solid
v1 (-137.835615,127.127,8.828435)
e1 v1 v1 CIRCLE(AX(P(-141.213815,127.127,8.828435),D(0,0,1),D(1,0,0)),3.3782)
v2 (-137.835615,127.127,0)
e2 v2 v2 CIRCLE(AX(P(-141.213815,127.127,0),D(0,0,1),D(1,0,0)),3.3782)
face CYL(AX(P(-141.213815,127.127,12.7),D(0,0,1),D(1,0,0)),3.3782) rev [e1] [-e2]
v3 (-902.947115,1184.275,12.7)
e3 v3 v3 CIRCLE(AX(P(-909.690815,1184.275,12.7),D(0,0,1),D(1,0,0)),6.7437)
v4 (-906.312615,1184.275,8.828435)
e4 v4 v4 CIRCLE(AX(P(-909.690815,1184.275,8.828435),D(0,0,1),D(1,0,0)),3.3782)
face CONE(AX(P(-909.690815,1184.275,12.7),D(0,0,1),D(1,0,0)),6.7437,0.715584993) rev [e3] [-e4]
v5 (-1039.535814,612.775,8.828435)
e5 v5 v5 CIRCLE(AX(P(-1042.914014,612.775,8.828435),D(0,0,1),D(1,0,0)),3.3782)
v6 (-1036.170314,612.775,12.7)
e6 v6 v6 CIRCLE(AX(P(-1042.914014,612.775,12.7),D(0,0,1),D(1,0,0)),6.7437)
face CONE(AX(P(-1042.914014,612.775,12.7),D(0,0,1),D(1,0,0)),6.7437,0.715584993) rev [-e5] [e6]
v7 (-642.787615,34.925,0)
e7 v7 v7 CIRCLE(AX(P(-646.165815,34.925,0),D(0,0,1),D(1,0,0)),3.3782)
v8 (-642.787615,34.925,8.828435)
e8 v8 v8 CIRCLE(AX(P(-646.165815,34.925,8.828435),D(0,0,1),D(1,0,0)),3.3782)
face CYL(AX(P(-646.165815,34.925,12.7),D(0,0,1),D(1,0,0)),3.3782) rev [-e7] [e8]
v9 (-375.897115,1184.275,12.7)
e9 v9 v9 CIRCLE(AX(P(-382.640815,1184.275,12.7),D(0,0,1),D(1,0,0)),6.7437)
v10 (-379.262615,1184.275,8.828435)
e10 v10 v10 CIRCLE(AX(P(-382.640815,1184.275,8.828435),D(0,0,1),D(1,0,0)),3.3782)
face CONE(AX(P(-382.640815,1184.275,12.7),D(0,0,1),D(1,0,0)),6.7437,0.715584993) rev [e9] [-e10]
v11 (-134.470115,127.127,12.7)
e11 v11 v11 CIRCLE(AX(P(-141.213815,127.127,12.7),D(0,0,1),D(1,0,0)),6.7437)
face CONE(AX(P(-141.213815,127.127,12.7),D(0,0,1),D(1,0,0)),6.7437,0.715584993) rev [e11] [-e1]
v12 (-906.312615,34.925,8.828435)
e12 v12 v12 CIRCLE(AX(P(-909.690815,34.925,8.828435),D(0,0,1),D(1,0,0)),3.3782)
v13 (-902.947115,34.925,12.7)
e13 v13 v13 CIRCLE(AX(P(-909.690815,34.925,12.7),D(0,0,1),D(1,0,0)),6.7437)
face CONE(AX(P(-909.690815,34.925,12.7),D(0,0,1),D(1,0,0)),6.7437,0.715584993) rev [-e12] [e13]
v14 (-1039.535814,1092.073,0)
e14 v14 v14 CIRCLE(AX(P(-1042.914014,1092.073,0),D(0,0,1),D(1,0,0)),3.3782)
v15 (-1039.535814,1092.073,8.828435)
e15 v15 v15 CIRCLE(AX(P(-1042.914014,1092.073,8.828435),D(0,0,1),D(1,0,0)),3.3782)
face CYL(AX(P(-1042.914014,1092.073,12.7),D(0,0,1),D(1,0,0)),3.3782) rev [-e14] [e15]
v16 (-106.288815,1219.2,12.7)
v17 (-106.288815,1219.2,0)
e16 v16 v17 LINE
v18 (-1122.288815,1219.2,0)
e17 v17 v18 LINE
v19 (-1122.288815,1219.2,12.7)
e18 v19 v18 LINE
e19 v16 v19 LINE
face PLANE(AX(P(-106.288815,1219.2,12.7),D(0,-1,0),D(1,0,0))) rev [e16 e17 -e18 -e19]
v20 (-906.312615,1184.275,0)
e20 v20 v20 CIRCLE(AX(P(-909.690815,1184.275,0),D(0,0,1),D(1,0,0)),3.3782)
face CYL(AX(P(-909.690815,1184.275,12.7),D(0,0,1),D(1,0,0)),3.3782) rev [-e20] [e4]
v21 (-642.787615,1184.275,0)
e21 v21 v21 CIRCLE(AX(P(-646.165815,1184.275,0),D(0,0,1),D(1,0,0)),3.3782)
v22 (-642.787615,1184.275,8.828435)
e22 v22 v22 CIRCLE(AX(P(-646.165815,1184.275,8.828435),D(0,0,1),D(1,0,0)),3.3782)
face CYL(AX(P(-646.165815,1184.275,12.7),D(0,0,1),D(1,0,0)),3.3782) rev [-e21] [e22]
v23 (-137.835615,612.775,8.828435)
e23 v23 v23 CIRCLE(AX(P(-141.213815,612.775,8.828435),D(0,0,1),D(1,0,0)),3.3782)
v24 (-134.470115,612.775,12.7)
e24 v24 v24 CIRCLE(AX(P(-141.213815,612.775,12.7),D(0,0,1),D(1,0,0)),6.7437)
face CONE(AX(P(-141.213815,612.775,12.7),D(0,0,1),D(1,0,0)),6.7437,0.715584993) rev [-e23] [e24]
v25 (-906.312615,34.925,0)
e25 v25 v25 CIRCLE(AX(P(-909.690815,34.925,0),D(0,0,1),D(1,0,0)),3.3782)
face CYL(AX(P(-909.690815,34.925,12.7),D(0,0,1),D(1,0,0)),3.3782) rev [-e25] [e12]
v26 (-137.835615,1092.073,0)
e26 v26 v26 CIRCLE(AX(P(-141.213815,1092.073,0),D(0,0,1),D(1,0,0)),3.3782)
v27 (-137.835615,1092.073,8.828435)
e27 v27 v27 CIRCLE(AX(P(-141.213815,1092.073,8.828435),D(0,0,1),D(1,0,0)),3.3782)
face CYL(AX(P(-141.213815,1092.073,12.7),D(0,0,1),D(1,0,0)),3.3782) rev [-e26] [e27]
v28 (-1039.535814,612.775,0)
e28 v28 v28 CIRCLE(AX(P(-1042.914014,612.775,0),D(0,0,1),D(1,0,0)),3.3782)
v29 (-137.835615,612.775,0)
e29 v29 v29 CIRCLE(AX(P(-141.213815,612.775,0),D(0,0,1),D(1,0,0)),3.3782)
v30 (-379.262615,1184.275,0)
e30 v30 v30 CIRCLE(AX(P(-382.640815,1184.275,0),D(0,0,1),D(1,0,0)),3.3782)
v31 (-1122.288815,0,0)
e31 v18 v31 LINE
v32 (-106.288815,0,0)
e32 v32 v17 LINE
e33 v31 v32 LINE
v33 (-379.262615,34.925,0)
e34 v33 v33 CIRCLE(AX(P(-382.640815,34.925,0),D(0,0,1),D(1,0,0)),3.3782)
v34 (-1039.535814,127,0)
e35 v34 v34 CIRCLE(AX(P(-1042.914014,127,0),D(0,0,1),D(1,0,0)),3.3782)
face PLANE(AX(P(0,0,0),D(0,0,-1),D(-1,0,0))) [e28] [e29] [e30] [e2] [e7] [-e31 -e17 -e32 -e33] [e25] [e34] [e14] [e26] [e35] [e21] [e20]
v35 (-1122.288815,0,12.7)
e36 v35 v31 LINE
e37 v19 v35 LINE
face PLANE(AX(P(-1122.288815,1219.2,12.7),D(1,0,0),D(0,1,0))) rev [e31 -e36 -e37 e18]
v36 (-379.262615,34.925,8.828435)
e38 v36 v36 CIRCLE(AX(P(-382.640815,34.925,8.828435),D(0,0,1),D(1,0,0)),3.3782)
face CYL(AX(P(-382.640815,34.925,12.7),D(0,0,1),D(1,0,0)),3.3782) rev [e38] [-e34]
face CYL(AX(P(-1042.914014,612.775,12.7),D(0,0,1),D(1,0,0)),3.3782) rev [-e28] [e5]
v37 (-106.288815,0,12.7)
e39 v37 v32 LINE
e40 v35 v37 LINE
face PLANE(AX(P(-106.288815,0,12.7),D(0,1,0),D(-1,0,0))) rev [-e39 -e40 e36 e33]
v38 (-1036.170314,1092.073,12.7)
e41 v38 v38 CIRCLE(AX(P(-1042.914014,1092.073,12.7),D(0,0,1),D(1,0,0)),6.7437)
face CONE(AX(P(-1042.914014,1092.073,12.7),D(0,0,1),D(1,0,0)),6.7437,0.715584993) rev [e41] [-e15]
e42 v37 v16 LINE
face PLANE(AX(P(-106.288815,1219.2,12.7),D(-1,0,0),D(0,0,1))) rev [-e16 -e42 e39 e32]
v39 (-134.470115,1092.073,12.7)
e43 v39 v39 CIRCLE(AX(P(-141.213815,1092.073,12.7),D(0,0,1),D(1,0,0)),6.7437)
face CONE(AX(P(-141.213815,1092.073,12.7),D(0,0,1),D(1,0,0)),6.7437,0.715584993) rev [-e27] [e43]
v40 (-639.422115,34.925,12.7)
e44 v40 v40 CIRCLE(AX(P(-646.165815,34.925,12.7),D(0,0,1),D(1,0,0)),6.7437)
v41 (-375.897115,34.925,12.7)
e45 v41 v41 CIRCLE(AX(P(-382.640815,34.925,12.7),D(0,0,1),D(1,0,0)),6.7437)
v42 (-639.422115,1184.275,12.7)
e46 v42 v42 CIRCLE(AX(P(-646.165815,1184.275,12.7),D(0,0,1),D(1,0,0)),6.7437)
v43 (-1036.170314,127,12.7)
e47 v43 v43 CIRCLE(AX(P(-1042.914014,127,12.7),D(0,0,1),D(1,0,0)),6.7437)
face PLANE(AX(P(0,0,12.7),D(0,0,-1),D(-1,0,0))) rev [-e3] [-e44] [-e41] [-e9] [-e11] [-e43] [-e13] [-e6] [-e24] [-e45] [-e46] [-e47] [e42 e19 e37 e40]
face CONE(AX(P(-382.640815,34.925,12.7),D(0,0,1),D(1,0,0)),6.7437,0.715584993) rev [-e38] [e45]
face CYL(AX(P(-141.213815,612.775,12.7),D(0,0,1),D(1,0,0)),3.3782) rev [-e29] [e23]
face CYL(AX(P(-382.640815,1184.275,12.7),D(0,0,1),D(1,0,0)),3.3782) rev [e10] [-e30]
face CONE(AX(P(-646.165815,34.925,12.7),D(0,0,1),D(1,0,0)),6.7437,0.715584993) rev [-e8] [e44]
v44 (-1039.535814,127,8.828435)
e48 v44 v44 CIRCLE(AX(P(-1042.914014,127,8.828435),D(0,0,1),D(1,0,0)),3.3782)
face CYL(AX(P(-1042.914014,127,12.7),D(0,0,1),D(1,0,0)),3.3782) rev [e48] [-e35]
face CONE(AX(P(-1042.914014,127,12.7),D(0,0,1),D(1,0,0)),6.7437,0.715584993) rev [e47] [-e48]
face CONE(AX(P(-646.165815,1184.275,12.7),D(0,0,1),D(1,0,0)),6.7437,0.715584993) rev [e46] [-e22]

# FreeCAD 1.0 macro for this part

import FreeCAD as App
import Part
import Sketcher

V = App.Vector
Q = App.Units.Quantity

doc = App.newDocument("Part")
body = doc.addObject("PartDesign::Body", "Body")

# Sketch on XY plane
sketch1 = body.newObject("Sketcher::SketchObject", "Sketch")
sketch1.AttachmentSupport = (doc.getObject("XY_Plane"), [""])
sketch1.MapMode = "FlatFace"
sketch1.addGeometry(Part.LineSegment(V(-1122, 1219, 0), V(-1122, 0, 0)), False)
sketch1.addGeometry(Part.LineSegment(V(-1122, 0, 0), V(-106, 0, 0)), False)
sketch1.addGeometry(Part.LineSegment(V(-106, 0, 0), V(-106, 1219, 0)), False)
sketch1.addGeometry(Part.LineSegment(V(-106, 1219, 0), V(-1122, 1219, 0)), False)
sketch1.addConstraint(Sketcher.Constraint("Coincident", 0, 2, 1, 1))
sketch1.addConstraint(Sketcher.Constraint("Coincident", 1, 2, 2, 1))
sketch1.addConstraint(Sketcher.Constraint("Coincident", 2, 2, 3, 1))
sketch1.addConstraint(Sketcher.Constraint("Coincident", 3, 2, 0, 1))
sketch1.addConstraint(Sketcher.Constraint("Vertical", 0))
sketch1.addConstraint(Sketcher.Constraint("Horizontal", 1))
sketch1.addConstraint(Sketcher.Constraint("Vertical", 2))
sketch1.addConstraint(Sketcher.Constraint("Horizontal", 3))
sketch1.addConstraint(Sketcher.Constraint("PointOnObject", 0, 2, -1))
sketch1.addConstraint(Sketcher.Constraint("DistanceX", 1, 1, 1, 2, Q("40 in")))
sketch1.addConstraint(Sketcher.Constraint("DistanceY", 0, 2, 0, 1, Q("48 in")))
sketch1.addConstraint(Sketcher.Constraint("DistanceX", 0, 2, -1, 1, Q("1122.288815 mm")))
pad1 = body.newObject("PartDesign::Pad", "Pad")
pad1.Profile = sketch1
pad1.Length = Q("0.5 in")

# Sketch on XY plane
sketch2 = body.newObject("Sketcher::SketchObject", "Sketch001")
sketch2.AttachmentSupport = (doc.getObject("XY_Plane"), [""])
sketch2.MapMode = "FlatFace"
sketch2.addGeometry(Part.Circle(V(-382.6, 1184.3, 0), V(0, 0, 1), 3.3), False)
sketch2.addGeometry(Part.Circle(V(-646.2, 1184.3, 0), V(0, 0, 1), 3.3), False)
sketch2.addGeometry(Part.Circle(V(-909.7, 1184.3, 0), V(0, 0, 1), 3.3), False)
sketch2.addGeometry(Part.Circle(V(-1042.9, 1092.1, 0), V(0, 0, 1), 3.2), False)
sketch2.addGeometry(Part.Circle(V(-1042.9, 612.8, 0), V(0, 0, 1), 3.2), False)
sketch2.addGeometry(Part.Circle(V(-1042.9, 127, 0), V(0, 0, 1), 3.2), False)
sketch2.addGeometry(Part.Circle(V(-141.2, 127.1, 0), V(0, 0, 1), 3.2), False)
sketch2.addGeometry(Part.Circle(V(-141.2, 612.8, 0), V(0, 0, 1), 3.3), False)
sketch2.addGeometry(Part.Circle(V(-141.2, 1092.1, 0), V(0, 0, 1), 3.2), False)
sketch2.addGeometry(Part.Circle(V(-909.7, 34.9, 0), V(0, 0, 1), 3.3), False)
sketch2.addGeometry(Part.Circle(V(-646.2, 34.9, 0), V(0, 0, 1), 3.3), False)
sketch2.addGeometry(Part.Circle(V(-382.6, 34.9, 0), V(0, 0, 1), 3.3), False)
sketch2.addConstraint(Sketcher.Constraint("Equal", 0, 1))
sketch2.addConstraint(Sketcher.Constraint("Equal", 1, 2))
sketch2.addConstraint(Sketcher.Constraint("Equal", 3, 4))
sketch2.addConstraint(Sketcher.Constraint("Equal", 4, 5))
sketch2.addConstraint(Sketcher.Constraint("Equal", 5, 6))
sketch2.addConstraint(Sketcher.Constraint("Equal", 2, 7))
sketch2.addConstraint(Sketcher.Constraint("Equal", 6, 8))
sketch2.addConstraint(Sketcher.Constraint("Equal", 7, 9))
sketch2.addConstraint(Sketcher.Constraint("Equal", 9, 10))
sketch2.addConstraint(Sketcher.Constraint("Equal", 10, 11))
sketch2.addConstraint(Sketcher.Constraint("Horizontal", 0, 3, 1, 3))
sketch2.addConstraint(Sketcher.Constraint("Horizontal", 1, 3, 2, 3))
sketch2.addConstraint(Sketcher.Constraint("Horizontal", 4, 3, 7, 3))
sketch2.addConstraint(Sketcher.Constraint("Horizontal", 3, 3, 8, 3))
sketch2.addConstraint(Sketcher.Constraint("Horizontal", 9, 3, 10, 3))
sketch2.addConstraint(Sketcher.Constraint("Horizontal", 10, 3, 11, 3))
sketch2.addConstraint(Sketcher.Constraint("Vertical", 3, 3, 4, 3))
sketch2.addConstraint(Sketcher.Constraint("Vertical", 4, 3, 5, 3))
sketch2.addConstraint(Sketcher.Constraint("Vertical", 6, 3, 7, 3))
sketch2.addConstraint(Sketcher.Constraint("Vertical", 7, 3, 8, 3))
sketch2.addConstraint(Sketcher.Constraint("Vertical", 2, 3, 9, 3))
sketch2.addConstraint(Sketcher.Constraint("Vertical", 1, 3, 10, 3))
sketch2.addConstraint(Sketcher.Constraint("Vertical", 0, 3, 11, 3))
sketch2.addConstraint(Sketcher.Constraint("Diameter", 0, Q("0.26 in")))
sketch2.addConstraint(Sketcher.Constraint("Diameter", 3, Q("0.25 in")))
sketch2.addConstraint(Sketcher.Constraint("DistanceY", -1, 1, 5, 3, Q("5 in")))
sketch2.addConstraint(Sketcher.Constraint("DistanceY", 4, 3, 2, 3, Q("22.5 in")))
sketch2.addConstraint(Sketcher.Constraint("DistanceX", 2, 3, 0, 3, Q("20.75 in")))
sketch2.addConstraint(Sketcher.Constraint("DistanceY", 3, 3, 2, 3, Q("3.63 in")))
sketch2.addConstraint(Sketcher.Constraint("DistanceY", 6, 3, 4, 3, Q("19.12 in")))
sketch2.addConstraint(Sketcher.Constraint("DistanceX", 1, 3, 6, 3, Q("19.88 in")))
sketch2.addConstraint(Sketcher.Constraint("DistanceY", 9, 3, 4, 3, Q("22.75 in")))
sketch2.addConstraint(Sketcher.Constraint("DistanceY", -1, 1, 0, 3, Q("46.625 in")))
sketch2.addConstraint(Sketcher.Constraint("DistanceX", 1, 3, 0, 3, Q("10.375 in")))
sketch2.addConstraint(Sketcher.Constraint("DistanceX", 3, 3, 2, 3, Q("133.223199 mm")))
sketch2.addConstraint(Sketcher.Constraint("DistanceX", 0, 3, -1, 1, Q("382.640815 mm")))
pocket1 = body.newObject("PartDesign::Pocket", "Pocket")
pocket1.Profile = sketch2
pocket1.Length = Q("0.5 in")
pocket1.Reversed = True

# Sketch on XY plane
sketch3 = body.newObject("Sketcher::SketchObject", "Sketch002")
sketch3.AttachmentSupport = (doc.getObject("XY_Plane"), [""])
sketch3.MapMode = "FlatFace"
sketch3.AttachmentOffset = App.Placement(V(0, 0, 0.5 * 25.4), App.Rotation())
sketch3.addGeometry(Part.Circle(V(-909.7, 1184.3, 0), V(0, 0, 1), 3.4), False)
sketch3.addGeometry(Part.Circle(V(-646.2, 1184.3, 0), V(0, 0, 1), 3.4), False)
sketch3.addGeometry(Part.Circle(V(-382.6, 1184.3, 0), V(0, 0, 1), 3.4), False)
sketch3.addGeometry(Part.Circle(V(-141.2, 1092.1, 0), V(0, 0, 1), 3.4), False)
sketch3.addGeometry(Part.Circle(V(-141.2, 612.8, 0), V(0, 0, 1), 3.4), False)
sketch3.addGeometry(Part.Circle(V(-141.2, 127.1, 0), V(0, 0, 1), 3.4), False)
sketch3.addGeometry(Part.Circle(V(-382.6, 34.9, 0), V(0, 0, 1), 3.4), False)
sketch3.addGeometry(Part.Circle(V(-646.2, 34.9, 0), V(0, 0, 1), 3.4), False)
sketch3.addGeometry(Part.Circle(V(-909.7, 34.9, 0), V(0, 0, 1), 3.4), False)
sketch3.addGeometry(Part.Circle(V(-1042.9, 127, 0), V(0, 0, 1), 3.4), False)
sketch3.addGeometry(Part.Circle(V(-1042.9, 612.8, 0), V(0, 0, 1), 3.4), False)
sketch3.addGeometry(Part.Circle(V(-1042.9, 1092.1, 0), V(0, 0, 1), 3.4), False)
sketch3.addConstraint(Sketcher.Constraint("Equal", 0, 1))
sketch3.addConstraint(Sketcher.Constraint("Equal", 1, 2))
sketch3.addConstraint(Sketcher.Constraint("Equal", 2, 3))
sketch3.addConstraint(Sketcher.Constraint("Equal", 3, 4))
sketch3.addConstraint(Sketcher.Constraint("Equal", 4, 5))
sketch3.addConstraint(Sketcher.Constraint("Equal", 5, 6))
sketch3.addConstraint(Sketcher.Constraint("Equal", 6, 7))
sketch3.addConstraint(Sketcher.Constraint("Equal", 7, 8))
sketch3.addConstraint(Sketcher.Constraint("Equal", 8, 9))
sketch3.addConstraint(Sketcher.Constraint("Equal", 9, 10))
sketch3.addConstraint(Sketcher.Constraint("Equal", 10, 11))
sketch3.addConstraint(Sketcher.Constraint("Horizontal", 0, 3, 1, 3))
sketch3.addConstraint(Sketcher.Constraint("Horizontal", 1, 3, 2, 3))
sketch3.addConstraint(Sketcher.Constraint("Horizontal", 6, 3, 7, 3))
sketch3.addConstraint(Sketcher.Constraint("Horizontal", 7, 3, 8, 3))
sketch3.addConstraint(Sketcher.Constraint("Horizontal", 4, 3, 10, 3))
sketch3.addConstraint(Sketcher.Constraint("Horizontal", 3, 3, 11, 3))
sketch3.addConstraint(Sketcher.Constraint("Vertical", 3, 3, 4, 3))
sketch3.addConstraint(Sketcher.Constraint("Vertical", 4, 3, 5, 3))
sketch3.addConstraint(Sketcher.Constraint("Vertical", 2, 3, 6, 3))
sketch3.addConstraint(Sketcher.Constraint("Vertical", 1, 3, 7, 3))
sketch3.addConstraint(Sketcher.Constraint("Vertical", 0, 3, 8, 3))
sketch3.addConstraint(Sketcher.Constraint("Vertical", 9, 3, 10, 3))
sketch3.addConstraint(Sketcher.Constraint("Vertical", 10, 3, 11, 3))
sketch3.addConstraint(Sketcher.Constraint("Diameter", 0, Q("0.266 in")))
sketch3.addConstraint(Sketcher.Constraint("DistanceY", -1, 1, 9, 3, Q("5 in")))
sketch3.addConstraint(Sketcher.Constraint("DistanceY", 4, 3, 2, 3, Q("22.5 in")))
sketch3.addConstraint(Sketcher.Constraint("DistanceX", 0, 3, 2, 3, Q("20.75 in")))
sketch3.addConstraint(Sketcher.Constraint("DistanceY", 3, 3, 2, 3, Q("3.63 in")))
sketch3.addConstraint(Sketcher.Constraint("DistanceX", 1, 3, 3, 3, Q("19.88 in")))
sketch3.addConstraint(Sketcher.Constraint("DistanceY", 5, 3, 4, 3, Q("19.12 in")))
sketch3.addConstraint(Sketcher.Constraint("DistanceY", 6, 3, 5, 3, Q("3.63 in")))
sketch3.addConstraint(Sketcher.Constraint("DistanceY", -1, 1, 0, 3, Q("46.625 in")))
sketch3.addConstraint(Sketcher.Constraint("DistanceX", 0, 3, 1, 3, Q("10.375 in")))
sketch3.addConstraint(Sketcher.Constraint("DistanceX", 9, 3, 8, 3, Q("133.223199 mm")))
sketch3.addConstraint(Sketcher.Constraint("DistanceX", 0, 3, -1, 1, Q("909.690815 mm")))
doc.recompute()
hole = body.newObject("PartDesign::Hole", "Hole")
hole.Profile = sketch3
hole.ThreadType = "None"
hole.Diameter = Q("0.266 in")
hole.DepthType = "ThroughAll"
hole.HoleCutType = "Countersink"
hole.HoleCutDiameter = Q("0.531 in")
hole.HoleCutCountersinkAngle = 82

doc.recompute()
